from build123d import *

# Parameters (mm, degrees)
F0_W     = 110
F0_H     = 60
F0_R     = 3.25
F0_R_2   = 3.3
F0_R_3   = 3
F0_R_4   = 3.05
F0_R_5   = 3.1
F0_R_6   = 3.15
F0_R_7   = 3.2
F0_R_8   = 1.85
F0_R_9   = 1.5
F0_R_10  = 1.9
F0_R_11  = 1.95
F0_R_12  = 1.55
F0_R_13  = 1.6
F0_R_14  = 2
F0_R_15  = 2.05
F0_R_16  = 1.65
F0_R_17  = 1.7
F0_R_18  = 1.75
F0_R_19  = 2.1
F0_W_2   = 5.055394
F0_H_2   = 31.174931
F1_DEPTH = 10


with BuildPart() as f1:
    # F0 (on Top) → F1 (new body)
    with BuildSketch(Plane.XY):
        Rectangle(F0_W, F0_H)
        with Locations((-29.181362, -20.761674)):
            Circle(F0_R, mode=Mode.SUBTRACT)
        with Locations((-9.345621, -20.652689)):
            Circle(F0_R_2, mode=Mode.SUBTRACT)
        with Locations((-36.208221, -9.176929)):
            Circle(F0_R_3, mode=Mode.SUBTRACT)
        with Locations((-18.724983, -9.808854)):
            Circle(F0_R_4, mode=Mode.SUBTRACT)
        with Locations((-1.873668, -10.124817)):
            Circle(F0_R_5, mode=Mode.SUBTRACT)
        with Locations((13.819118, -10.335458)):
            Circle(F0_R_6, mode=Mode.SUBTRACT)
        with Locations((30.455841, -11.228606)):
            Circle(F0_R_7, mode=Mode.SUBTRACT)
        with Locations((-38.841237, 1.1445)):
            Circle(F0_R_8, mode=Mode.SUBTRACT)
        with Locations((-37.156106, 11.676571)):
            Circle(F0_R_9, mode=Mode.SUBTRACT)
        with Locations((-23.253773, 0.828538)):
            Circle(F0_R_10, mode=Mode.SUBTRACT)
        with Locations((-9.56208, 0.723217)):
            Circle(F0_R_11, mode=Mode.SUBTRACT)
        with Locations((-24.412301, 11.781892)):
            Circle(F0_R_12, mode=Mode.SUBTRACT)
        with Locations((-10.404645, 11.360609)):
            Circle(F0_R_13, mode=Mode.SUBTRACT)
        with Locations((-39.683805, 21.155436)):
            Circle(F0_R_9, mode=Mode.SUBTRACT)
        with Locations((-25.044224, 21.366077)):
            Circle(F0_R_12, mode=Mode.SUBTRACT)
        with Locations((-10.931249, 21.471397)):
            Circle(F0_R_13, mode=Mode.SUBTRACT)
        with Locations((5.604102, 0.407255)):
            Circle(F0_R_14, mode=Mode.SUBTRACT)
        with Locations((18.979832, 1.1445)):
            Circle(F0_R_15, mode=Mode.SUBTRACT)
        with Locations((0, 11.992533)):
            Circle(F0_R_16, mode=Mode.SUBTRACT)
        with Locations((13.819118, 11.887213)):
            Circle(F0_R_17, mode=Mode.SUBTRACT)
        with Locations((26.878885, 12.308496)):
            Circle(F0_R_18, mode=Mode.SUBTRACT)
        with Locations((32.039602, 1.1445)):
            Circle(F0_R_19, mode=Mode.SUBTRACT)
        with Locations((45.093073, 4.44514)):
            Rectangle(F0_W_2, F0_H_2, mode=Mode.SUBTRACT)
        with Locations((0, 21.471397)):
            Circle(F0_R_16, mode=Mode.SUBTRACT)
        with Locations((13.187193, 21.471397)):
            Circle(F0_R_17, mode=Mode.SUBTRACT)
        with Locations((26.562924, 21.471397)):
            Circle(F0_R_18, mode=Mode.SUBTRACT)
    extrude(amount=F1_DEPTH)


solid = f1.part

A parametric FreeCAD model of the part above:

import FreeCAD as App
import Part
import Sketcher
from FreeCAD import Vector

doc = App.newDocument("Part")
body = doc.addObject("PartDesign::Body", "Body")

# Sketch on XY plane
sketch1 = body.newObject("Sketcher::SketchObject", "Sketch")
sketch1.AttachmentSupport = (doc.getObject("XY_Plane"), [""])
sketch1.MapMode = "FlatFace"
sketch1.addGeometry([
    Part.LineSegment(Vector(-55, 30, 0), Vector(-55, -30, 0)),  # 0
    Part.LineSegment(Vector(-55, -30, 0), Vector(55, -30, 0)),  # 1
    Part.LineSegment(Vector(55, -30, 0), Vector(55, 30, 0)),  # 2
    Part.LineSegment(Vector(55, 30, 0), Vector(-55, 30, 0)),  # 3
    Part.Circle(Vector(-29.181362, -20.761674, 0), Vector(0, 0, 1), 3.25),  # 4
    Part.Circle(Vector(-9.345621, -20.652689, 0), Vector(0, 0, 1), 3.3),  # 5
    Part.Circle(Vector(-36.208221, -9.176929, 0), Vector(0, 0, 1), 3),  # 6
    Part.Circle(Vector(-18.724983, -9.808854, 0), Vector(0, 0, 1), 3.05),  # 7
    Part.Circle(Vector(-1.873668, -10.124817, 0), Vector(0, 0, 1), 3.1),  # 8
    Part.Circle(Vector(13.819118, -10.335458, 0), Vector(0, 0, 1), 3.15),  # 9
    Part.Circle(Vector(30.455841, -11.228606, 0), Vector(0, 0, 1), 3.2),  # 10
    Part.Circle(Vector(-38.841237, 1.1445, 0), Vector(0, 0, 1), 1.85),  # 11
    Part.Circle(Vector(-23.253773, 0.828538, 0), Vector(0, 0, 1), 1.9),  # 12
    Part.Circle(Vector(-9.56208, 0.723217, 0), Vector(0, 0, 1), 1.95),  # 13
    Part.Circle(Vector(-10.404645, 11.360609, 0), Vector(0, 0, 1), 1.6),  # 14
    Part.Circle(Vector(-37.156106, 11.676571, 0), Vector(0, 0, 1), 1.5),  # 15
    Part.Circle(Vector(-24.412301, 11.781892, 0), Vector(0, 0, 1), 1.55),  # 16
    Part.Circle(Vector(-39.683805, 21.155436, 0), Vector(0, 0, 1), 1.5),  # 17
    Part.Circle(Vector(-25.044224, 21.366077, 0), Vector(0, 0, 1), 1.55),  # 18
    Part.Circle(Vector(0, 11.992533, 0), Vector(0, 0, 1), 1.65),  # 19
    Part.Circle(Vector(-10.931249, 21.471397, 0), Vector(0, 0, 1), 1.6),  # 20
    Part.Circle(Vector(0, 21.471397, 0), Vector(0, 0, 1), 1.65),  # 21
    Part.Circle(Vector(5.604102, 0.407255, 0), Vector(0, 0, 1), 2),  # 22
    Part.Circle(Vector(18.979832, 1.1445, 0), Vector(0, 0, 1), 2.05),  # 23
    Part.Circle(Vector(32.039602, 1.1445, 0), Vector(0, 0, 1), 2.1),  # 24
    Part.LineSegment(Vector(47.62077, -11.142326, 0), Vector(42.565376, -11.142326, 0)),  # 25
    Part.LineSegment(Vector(42.565376, -11.142326, 0), Vector(42.565376, 20.032605, 0)),  # 26
    Part.LineSegment(Vector(42.565376, 20.032605, 0), Vector(47.62077, 20.032605, 0)),  # 27
    Part.LineSegment(Vector(47.62077, 20.032605, 0), Vector(47.62077, -11.142326, 0)),  # 28
    Part.Circle(Vector(13.819118, 11.887213, 0), Vector(0, 0, 1), 1.7),  # 29
    Part.Circle(Vector(13.187193, 21.471397, 0), Vector(0, 0, 1), 1.7),  # 30
    Part.Circle(Vector(26.878885, 12.308496, 0), Vector(0, 0, 1), 1.75),  # 31
    Part.Circle(Vector(26.562924, 21.471397, 0), Vector(0, 0, 1), 1.75),  # 32
], False)
sketch1.addConstraint([
    Sketcher.Constraint("Coincident", 0, 2, 1, 1),
    Sketcher.Constraint("Coincident", 1, 2, 2, 1),
    Sketcher.Constraint("Coincident", 2, 2, 3, 1),
    Sketcher.Constraint("Coincident", 3, 2, 0, 1),
    Sketcher.Constraint("Coincident", 25, 2, 26, 1),
    Sketcher.Constraint("Coincident", 26, 2, 27, 1),
    Sketcher.Constraint("Coincident", 27, 2, 28, 1),
    Sketcher.Constraint("Coincident", 28, 2, 25, 1),
    Sketcher.Constraint("Vertical", 0),
    Sketcher.Constraint("Horizontal", 1),
    Sketcher.Constraint("Vertical", 2),
    Sketcher.Constraint("Horizontal", 3),
    Sketcher.Constraint("Horizontal", 25),
    Sketcher.Constraint("Vertical", 26),
    Sketcher.Constraint("Horizontal", 27),
    Sketcher.Constraint("Vertical", 28),
    Sketcher.Constraint("Equal", 15, 17),
    Sketcher.Constraint("Equal", 16, 18),
    Sketcher.Constraint("Equal", 14, 20),
    Sketcher.Constraint("Equal", 19, 21),
    Sketcher.Constraint("Equal", 29, 30),
    Sketcher.Constraint("Equal", 31, 32),
    Sketcher.Constraint("Symmetric", 0, 2, 2, 2, -1, 1),
    Sketcher.Constraint("PointOnObject", 19, 3, -2),
    Sketcher.Constraint("PointOnObject", 21, 3, -2),
    Sketcher.Constraint("Horizontal", 20, 3, 21, 3),
    Sketcher.Constraint("Horizontal", 11, 3, 23, 3),
    Sketcher.Constraint("Horizontal", 23, 3, 24, 3),
    Sketcher.Constraint("Horizontal", 21, 3, 30, 3),
    Sketcher.Constraint("Horizontal", 30, 3, 32, 3),
    Sketcher.Constraint("Vertical", 9, 3, 29, 3),
    Sketcher.Constraint("Diameter", 6, 6.0),
    Sketcher.Constraint("Diameter", 15, 3.0),
    Sketcher.Constraint("Diameter", 22, 4.0),
    Sketcher.Constraint("Diameter", 4, 6.5),
    Sketcher.Constraint("Diameter", 5, 6.6),
    Sketcher.Constraint("Diameter", 7, 6.1),
    Sketcher.Constraint("Diameter", 8, 6.2),
    Sketcher.Constraint("Diameter", 9, 6.3),
    Sketcher.Constraint("Diameter", 10, 6.4),
    Sketcher.Constraint("Diameter", 11, 3.7),
    Sketcher.Constraint("Diameter", 12, 3.8),
    Sketcher.Constraint("Diameter", 13, 3.9),
    Sketcher.Constraint("Diameter", 14, 3.2),
    Sketcher.Constraint("Diameter", 16, 3.1),
    Sketcher.Constraint("Diameter", 19, 3.3),
    Sketcher.Constraint("Diameter", 23, 4.1),
    Sketcher.Constraint("Diameter", 24, 4.2),
    Sketcher.Constraint("Diameter", 29, 3.4),
    Sketcher.Constraint("Diameter", 31, 3.5),
    Sketcher.Constraint("DistanceX", 1, 1, 1, 2, 110.0),
    Sketcher.Constraint("DistanceY", 0, 2, 0, 1, 60.0),
    Sketcher.Constraint("DistanceY", 26, 1, 26, 2, 31.174931),
    Sketcher.Constraint("DistanceY", -1, 1, 11, 3, 1.1445),
    Sketcher.Constraint("DistanceX", 16, 3, -1, 1, 24.412301),
    Sketcher.Constraint("DistanceX", 6, 3, 5, 3, 26.8626),
    Sketcher.Constraint("DistanceX", 7, 3, 9, 3, 32.544101),
    Sketcher.Constraint("DistanceY", 6, 3, 15, 3, 20.8535),
    Sketcher.Constraint("DistanceX", 17, 3, 15, 3, 2.527699),
    Sketcher.Constraint("DistanceY", 12, 3, 17, 3, 20.326898),
    Sketcher.Constraint("DistanceX", 8, 3, 23, 3, 20.8535),
    Sketcher.Constraint("DistanceX", 22, 3, 24, 3, 26.4355),
    Sketcher.Constraint("DistanceY", 31, 3, 30, 3, 9.162901),
    Sketcher.Constraint("DistanceY", 10, 3, 31, 3, 23.537102),
    Sketcher.Constraint("DistanceX", 25, 2, 25, 1, 5.055394),
    Sketcher.Constraint("DistanceX", 4, 3, -1, 1, 29.181362),
    Sketcher.Constraint("DistanceX", 5, 3, -1, 1, 9.345621),
    Sketcher.Constraint("DistanceY", 5, 3, -1, 1, 20.652689),
    Sketcher.Constraint("DistanceY", 6, 3, -1, 1, 9.176929),
    Sketcher.Constraint("DistanceX", -1, 1, 10, 3, 30.455841),
    Sketcher.Constraint("DistanceX", 13, 3, -1, 1, 9.56208),
    Sketcher.Constraint("DistanceY", -1, 1, 14, 3, 11.360609),
    Sketcher.Constraint("DistanceY", -1, 1, 16, 3, 11.781892),
    Sketcher.Constraint("DistanceX", 20, 3, -1, 1, 10.931249),
    Sketcher.Constraint("DistanceX", -1, 1, 23, 3, 18.979832),
    Sketcher.Constraint("DistanceX", -1, 1, 27, 2, 47.62077),
    Sketcher.Constraint("DistanceX", 4, 3, 7, 3, 10.456379),
    Sketcher.Constraint("DistanceY", 4, 3, 7, 3, 10.95282),
    Sketcher.Constraint("DistanceY", 5, 3, 8, 3, 10.527872),
    Sketcher.Constraint("DistanceY", 9, 3, 8, 3, 0.210641),
    Sketcher.Constraint("DistanceY", 10, 3, 9, 3, 0.893148),
    Sketcher.Constraint("DistanceY", 10, 3, 7, 3, 1.419752),
    Sketcher.Constraint("DistanceX", 11, 3, 8, 3, 36.967569),
    Sketcher.Constraint("DistanceX", 12, 3, 7, 3, 4.52879),
    Sketcher.Constraint("DistanceY", 13, 3, 12, 3, 0.105321),
    Sketcher.Constraint("DistanceY", 7, 3, 13, 3, 10.532071),
    Sketcher.Constraint("DistanceX", 7, 3, 14, 3, 8.320338),
    Sketcher.Constraint("DistanceX", 11, 3, 15, 3, 1.685131),
    Sketcher.Constraint("DistanceX", 17, 3, 18, 3, 14.639581),
    Sketcher.Constraint("DistanceY", 17, 3, 18, 3, 0.210641),
    Sketcher.Constraint("DistanceY", 8, 3, 19, 3, 22.11735),
    Sketcher.Constraint("DistanceY", 22, 3, 19, 3, 11.585278),
    Sketcher.Constraint("DistanceX", 8, 3, 22, 3, 7.47777),
    Sketcher.Constraint("DistanceY", 29, 3, 19, 3, 0.10532),
    Sketcher.Constraint("DistanceX", 30, 3, 23, 3, 5.792639),
    Sketcher.Constraint("DistanceX", 32, 3, 31, 3, 0.315961),
    Sketcher.Constraint("DistanceX", 30, 3, 32, 3, 13.375731),
    Sketcher.Constraint("DistanceY", 10, 3, 25, 2, 0.08628),
])
pad1 = body.newObject("PartDesign::Pad", "Pad")
pad1.Profile = sketch1
pad1.Length = 10

doc.recompute()
